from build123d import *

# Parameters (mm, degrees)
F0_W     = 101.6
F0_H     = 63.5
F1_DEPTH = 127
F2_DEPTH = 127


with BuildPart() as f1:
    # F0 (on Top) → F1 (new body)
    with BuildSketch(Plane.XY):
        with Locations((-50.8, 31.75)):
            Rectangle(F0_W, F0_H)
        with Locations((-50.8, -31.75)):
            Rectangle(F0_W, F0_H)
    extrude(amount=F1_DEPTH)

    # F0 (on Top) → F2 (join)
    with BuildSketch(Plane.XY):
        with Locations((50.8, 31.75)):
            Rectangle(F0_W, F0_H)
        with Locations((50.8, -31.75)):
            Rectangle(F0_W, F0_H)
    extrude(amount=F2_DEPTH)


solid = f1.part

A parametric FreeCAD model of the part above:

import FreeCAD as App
import Part
import Sketcher

V = App.Vector
Q = App.Units.Quantity


def add_polygon(sketch, points):
    """Adds a closed chain of lines whose ends are joined by coincident constraints."""
    first, n = sketch.GeometryCount, len(points)
    for a, b in zip(points, points[1:] + points[:1]):
        sketch.addGeometry(Part.LineSegment(App.Vector(*a, 0), App.Vector(*b, 0)), False)
    for i in range(n):
        sketch.addConstraint(Sketcher.Constraint("Coincident", first + i, 2, first + (i + 1) % n, 1))

doc = App.newDocument("Part")
body = doc.addObject("PartDesign::Body", "Body")

sketch1 = body.newObject("Sketcher::SketchObject", "Sketch")
sketch1.AttachmentSupport = (doc.getObject("XY_Plane"), [""])
sketch1.MapMode = "FlatFace"
add_polygon(sketch1, [(-101.6, 63.5), (-101.6, -63.5), (0, -63.5), (0, 63.5)])
sketch1.addConstraint(Sketcher.Constraint("Vertical", 0))
sketch1.addConstraint(Sketcher.Constraint("Horizontal", 1))
sketch1.addConstraint(Sketcher.Constraint("Vertical", 2))
sketch1.addConstraint(Sketcher.Constraint("Horizontal", 3))
sketch1.addConstraint(Sketcher.Constraint("Symmetric", 1, 2, 2, 2, -1, 1))
sketch1.addConstraint(Sketcher.Constraint("DistanceX", 1, 1, 1, 2, Q("4 in")))
sketch1.addConstraint(Sketcher.Constraint("DistanceY", 0, 2, 0, 1, Q("5 in")))
pad1 = body.newObject("PartDesign::Pad", "Pad")
pad1.Profile = sketch1
pad1.Length = Q("5 in")

sketch2 = body.newObject("Sketcher::SketchObject", "Sketch001")
sketch2.AttachmentSupport = (doc.getObject("XY_Plane"), [""])
sketch2.MapMode = "FlatFace"
add_polygon(sketch2, [(0, 63.5), (0, -63.5), (101.6, -63.5), (101.6, 63.5)])
sketch2.addConstraint(Sketcher.Constraint("Vertical", 0))
sketch2.addConstraint(Sketcher.Constraint("Horizontal", 1))
sketch2.addConstraint(Sketcher.Constraint("Vertical", 2))
sketch2.addConstraint(Sketcher.Constraint("Horizontal", 3))
sketch2.addConstraint(Sketcher.Constraint("Symmetric", 0, 2, 3, 2, -1, 1))
sketch2.addConstraint(Sketcher.Constraint("DistanceX", 1, 1, 1, 2, Q("4 in")))
sketch2.addConstraint(Sketcher.Constraint("DistanceY", 0, 2, 0, 1, Q("5 in")))
pad2 = body.newObject("PartDesign::Pad", "Pad001")
pad2.Profile = sketch2
pad2.Length = Q("5 in")

doc.recompute()
